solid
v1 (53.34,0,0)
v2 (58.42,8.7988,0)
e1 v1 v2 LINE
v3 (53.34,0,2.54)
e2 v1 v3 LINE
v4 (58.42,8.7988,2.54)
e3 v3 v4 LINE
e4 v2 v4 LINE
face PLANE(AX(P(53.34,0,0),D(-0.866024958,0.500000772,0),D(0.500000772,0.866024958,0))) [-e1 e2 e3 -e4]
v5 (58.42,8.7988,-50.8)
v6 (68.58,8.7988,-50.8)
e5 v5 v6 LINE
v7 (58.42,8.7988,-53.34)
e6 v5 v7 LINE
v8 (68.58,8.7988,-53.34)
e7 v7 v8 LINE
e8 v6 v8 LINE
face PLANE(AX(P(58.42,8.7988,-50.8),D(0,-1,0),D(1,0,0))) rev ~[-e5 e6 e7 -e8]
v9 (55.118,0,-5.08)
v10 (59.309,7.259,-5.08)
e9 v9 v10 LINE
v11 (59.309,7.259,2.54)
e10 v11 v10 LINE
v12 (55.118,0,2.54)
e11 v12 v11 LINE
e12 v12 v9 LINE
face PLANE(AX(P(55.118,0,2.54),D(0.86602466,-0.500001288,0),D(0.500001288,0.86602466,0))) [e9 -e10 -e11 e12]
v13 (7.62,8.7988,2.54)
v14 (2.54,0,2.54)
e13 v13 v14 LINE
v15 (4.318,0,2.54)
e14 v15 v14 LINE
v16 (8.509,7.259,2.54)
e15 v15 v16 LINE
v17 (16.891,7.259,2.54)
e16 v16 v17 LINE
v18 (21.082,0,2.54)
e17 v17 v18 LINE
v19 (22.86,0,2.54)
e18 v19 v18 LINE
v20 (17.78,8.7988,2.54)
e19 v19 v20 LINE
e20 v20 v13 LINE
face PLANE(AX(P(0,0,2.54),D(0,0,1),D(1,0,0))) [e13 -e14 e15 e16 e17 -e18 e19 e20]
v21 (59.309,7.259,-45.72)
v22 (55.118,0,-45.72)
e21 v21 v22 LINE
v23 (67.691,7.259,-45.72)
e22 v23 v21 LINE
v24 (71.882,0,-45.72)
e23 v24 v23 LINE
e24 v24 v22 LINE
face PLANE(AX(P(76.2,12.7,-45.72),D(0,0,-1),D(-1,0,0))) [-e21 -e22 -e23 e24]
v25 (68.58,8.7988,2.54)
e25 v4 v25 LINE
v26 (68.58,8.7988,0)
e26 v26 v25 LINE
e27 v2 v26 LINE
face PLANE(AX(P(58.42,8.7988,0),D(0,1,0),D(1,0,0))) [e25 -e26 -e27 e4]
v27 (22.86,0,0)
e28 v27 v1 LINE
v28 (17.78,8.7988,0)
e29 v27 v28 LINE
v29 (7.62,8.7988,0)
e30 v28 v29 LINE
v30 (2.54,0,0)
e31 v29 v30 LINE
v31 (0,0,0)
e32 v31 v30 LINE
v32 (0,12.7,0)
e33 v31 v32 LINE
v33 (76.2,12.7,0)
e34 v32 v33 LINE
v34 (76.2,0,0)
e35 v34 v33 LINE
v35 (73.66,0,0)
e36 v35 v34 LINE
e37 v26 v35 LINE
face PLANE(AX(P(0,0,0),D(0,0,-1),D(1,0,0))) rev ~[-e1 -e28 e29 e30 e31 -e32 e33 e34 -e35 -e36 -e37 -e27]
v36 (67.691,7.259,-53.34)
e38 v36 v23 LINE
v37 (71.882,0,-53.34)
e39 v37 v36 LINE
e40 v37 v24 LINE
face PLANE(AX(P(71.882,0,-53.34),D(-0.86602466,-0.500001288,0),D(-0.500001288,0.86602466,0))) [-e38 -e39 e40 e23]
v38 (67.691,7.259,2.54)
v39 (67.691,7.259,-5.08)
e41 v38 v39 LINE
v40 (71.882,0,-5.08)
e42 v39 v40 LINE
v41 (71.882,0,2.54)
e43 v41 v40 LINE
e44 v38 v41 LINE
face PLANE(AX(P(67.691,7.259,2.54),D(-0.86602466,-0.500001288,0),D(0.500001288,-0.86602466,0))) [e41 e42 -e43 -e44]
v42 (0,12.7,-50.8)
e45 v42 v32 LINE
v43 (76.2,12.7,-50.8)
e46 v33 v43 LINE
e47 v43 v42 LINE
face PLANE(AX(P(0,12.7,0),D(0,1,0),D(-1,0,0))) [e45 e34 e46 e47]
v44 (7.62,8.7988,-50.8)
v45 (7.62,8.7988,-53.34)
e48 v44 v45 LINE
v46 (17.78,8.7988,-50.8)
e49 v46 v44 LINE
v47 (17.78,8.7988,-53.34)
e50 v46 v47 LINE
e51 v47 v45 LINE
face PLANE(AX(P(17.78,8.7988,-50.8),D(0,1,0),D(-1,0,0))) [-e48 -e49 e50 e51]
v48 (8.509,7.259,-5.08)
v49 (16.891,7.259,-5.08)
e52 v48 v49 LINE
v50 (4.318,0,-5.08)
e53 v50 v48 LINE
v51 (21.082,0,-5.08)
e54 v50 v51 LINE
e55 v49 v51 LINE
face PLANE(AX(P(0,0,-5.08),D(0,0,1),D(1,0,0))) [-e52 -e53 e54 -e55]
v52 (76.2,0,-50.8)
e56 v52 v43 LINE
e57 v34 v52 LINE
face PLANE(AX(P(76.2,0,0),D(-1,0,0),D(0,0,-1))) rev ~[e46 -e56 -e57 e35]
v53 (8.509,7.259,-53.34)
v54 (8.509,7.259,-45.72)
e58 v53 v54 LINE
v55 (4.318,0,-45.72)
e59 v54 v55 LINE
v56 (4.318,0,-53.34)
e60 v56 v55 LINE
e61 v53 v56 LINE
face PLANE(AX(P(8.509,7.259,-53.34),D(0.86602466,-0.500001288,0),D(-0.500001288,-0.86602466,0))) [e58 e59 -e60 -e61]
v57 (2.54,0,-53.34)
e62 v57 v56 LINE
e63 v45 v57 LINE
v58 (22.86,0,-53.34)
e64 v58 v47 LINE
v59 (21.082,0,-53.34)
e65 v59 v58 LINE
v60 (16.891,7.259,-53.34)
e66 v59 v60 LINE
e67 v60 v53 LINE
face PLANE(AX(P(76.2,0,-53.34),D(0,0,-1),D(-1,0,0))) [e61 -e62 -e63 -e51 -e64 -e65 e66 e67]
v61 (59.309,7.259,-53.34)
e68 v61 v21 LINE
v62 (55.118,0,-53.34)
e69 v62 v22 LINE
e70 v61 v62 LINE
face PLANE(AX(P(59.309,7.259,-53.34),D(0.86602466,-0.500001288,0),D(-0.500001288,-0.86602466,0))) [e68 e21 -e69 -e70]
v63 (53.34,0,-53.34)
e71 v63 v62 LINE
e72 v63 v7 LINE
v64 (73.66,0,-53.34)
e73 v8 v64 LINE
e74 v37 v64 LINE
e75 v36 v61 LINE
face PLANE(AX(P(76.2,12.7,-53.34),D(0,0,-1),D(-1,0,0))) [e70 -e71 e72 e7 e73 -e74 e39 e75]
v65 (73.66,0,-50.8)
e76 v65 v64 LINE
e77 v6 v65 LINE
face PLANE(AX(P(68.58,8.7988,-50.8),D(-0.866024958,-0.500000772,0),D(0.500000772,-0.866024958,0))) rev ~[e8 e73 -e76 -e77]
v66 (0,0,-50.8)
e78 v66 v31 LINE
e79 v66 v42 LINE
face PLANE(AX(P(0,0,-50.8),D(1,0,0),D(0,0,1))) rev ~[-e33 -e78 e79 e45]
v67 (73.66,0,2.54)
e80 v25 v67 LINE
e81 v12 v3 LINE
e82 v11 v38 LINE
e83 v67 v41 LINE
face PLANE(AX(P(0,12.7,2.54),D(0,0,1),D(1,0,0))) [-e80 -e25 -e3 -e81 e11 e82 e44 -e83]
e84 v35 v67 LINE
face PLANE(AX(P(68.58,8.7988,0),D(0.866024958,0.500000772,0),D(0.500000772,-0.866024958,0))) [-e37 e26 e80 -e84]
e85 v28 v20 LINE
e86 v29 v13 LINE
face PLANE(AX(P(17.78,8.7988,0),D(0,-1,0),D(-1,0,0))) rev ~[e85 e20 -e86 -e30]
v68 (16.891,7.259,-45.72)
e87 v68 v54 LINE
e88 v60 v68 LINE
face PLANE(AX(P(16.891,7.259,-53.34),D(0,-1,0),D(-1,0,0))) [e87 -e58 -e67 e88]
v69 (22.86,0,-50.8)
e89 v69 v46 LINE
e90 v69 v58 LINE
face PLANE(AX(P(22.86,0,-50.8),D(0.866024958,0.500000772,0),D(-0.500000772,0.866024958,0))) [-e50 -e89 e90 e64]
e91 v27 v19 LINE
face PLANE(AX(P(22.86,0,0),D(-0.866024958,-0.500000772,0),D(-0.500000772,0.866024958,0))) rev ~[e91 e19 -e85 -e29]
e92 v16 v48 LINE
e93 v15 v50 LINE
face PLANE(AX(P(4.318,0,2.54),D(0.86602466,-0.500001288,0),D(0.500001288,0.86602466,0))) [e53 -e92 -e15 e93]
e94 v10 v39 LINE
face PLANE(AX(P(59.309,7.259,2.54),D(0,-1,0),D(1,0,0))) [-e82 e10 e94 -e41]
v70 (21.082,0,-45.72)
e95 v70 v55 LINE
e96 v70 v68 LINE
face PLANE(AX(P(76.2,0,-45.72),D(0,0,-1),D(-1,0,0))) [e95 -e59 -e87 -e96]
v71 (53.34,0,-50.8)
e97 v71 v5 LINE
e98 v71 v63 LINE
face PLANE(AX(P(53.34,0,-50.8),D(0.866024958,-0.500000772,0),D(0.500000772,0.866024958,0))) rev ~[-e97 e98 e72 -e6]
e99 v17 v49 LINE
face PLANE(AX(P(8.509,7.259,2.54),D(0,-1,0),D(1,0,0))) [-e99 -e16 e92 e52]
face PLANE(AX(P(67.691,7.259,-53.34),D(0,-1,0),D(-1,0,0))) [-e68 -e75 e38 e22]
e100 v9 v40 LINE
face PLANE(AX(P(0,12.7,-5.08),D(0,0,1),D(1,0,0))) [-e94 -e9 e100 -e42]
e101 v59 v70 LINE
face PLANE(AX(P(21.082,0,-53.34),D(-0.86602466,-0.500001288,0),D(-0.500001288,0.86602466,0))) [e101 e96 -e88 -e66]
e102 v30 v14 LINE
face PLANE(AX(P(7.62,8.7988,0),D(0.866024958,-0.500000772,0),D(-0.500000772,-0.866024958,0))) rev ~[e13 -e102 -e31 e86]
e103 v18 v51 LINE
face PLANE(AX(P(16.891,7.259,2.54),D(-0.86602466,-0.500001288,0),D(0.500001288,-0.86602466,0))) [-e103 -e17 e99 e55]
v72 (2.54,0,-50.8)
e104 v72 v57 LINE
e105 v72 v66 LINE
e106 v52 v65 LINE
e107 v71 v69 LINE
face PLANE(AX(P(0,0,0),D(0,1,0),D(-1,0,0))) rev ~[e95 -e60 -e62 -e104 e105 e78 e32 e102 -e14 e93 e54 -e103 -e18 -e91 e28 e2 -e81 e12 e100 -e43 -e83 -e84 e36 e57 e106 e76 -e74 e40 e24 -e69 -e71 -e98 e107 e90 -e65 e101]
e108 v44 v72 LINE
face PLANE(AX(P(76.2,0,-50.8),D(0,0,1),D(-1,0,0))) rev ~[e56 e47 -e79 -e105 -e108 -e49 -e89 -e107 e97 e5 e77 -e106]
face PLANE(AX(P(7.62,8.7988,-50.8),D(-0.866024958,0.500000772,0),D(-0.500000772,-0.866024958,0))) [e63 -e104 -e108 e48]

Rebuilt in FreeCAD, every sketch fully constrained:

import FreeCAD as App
import Part
import Sketcher
Q = App.Units.Quantity

doc = App.newDocument("Part")
body = doc.addObject("PartDesign::Body", "Body")

sketch1 = body.newObject("Sketcher::SketchObject", "Sketch")
sketch1.AttachmentSupport = (doc.getObject("XZ_Plane"), [""])
sketch1.MapMode = "FlatFace"
sketch1.addGeometry([
    Part.LineSegment(App.Vector(0, -50.8, 0), App.Vector(0, 0, 0)),
    Part.LineSegment(App.Vector(0, 0, 0), App.Vector(76.2, 0, 0)),
    Part.LineSegment(App.Vector(76.2, 0, 0), App.Vector(76.2, -50.8, 0)),
    Part.LineSegment(App.Vector(76.2, -50.8, 0), App.Vector(0, -50.8, 0)),
], False)
sketch1.addConstraint([
    Sketcher.Constraint("Coincident", 0, 2, 1, 1),
    Sketcher.Constraint("Coincident", 1, 2, 2, 1),
    Sketcher.Constraint("Coincident", 2, 2, 3, 1),
    Sketcher.Constraint("Coincident", 3, 2, 0, 1),
    Sketcher.Constraint("Vertical", 0),
    Sketcher.Constraint("Horizontal", 1),
    Sketcher.Constraint("Vertical", 2),
    Sketcher.Constraint("Horizontal", 3),
    Sketcher.Constraint("Coincident", 0, 2, -1, 1),
    Sketcher.Constraint("DistanceX", 1, 1, 1, 2, Q("3 in")),
    Sketcher.Constraint("DistanceY", 0, 1, 0, 2, Q("2 in")),
])
pad1 = body.newObject("PartDesign::Pad", "Pad")
pad1.Profile = sketch1
pad1.Length = Q("0.5 in")
pad1.Reversed = True

sketch2 = body.newObject("Sketcher::SketchObject", "Sketch001")
sketch2.AttachmentSupport = (doc.getObject("XY_Plane"), [""])
sketch2.MapMode = "FlatFace"
sketch2.AttachmentOffset = App.Placement(App.Vector(0, 0, -2 * 25.4), App.Rotation())
sketch2.addGeometry([
    Part.LineSegment(App.Vector(22.86, 0, 0), App.Vector(2.54, 0, 0)),
    Part.LineSegment(App.Vector(2.54, 0, 0), App.Vector(7.62, 8.7988, 0)),
    Part.LineSegment(App.Vector(7.62, 8.7988, 0), App.Vector(17.78, 8.7988, 0)),
    Part.LineSegment(App.Vector(17.78, 8.7988, 0), App.Vector(22.86, 0, 0)),
], False)
sketch2.addConstraint([
    Sketcher.Constraint("Coincident", 0, 2, 1, 1),
    Sketcher.Constraint("Coincident", 1, 2, 2, 1),
    Sketcher.Constraint("Coincident", 2, 2, 3, 1),
    Sketcher.Constraint("Coincident", 3, 2, 0, 1),
    Sketcher.Constraint("Horizontal", 0),
    Sketcher.Constraint("Horizontal", 2),
    Sketcher.Constraint("PointOnObject", 0, 2, -1),
    Sketcher.Constraint("Equal", 1, 3),
    Sketcher.Constraint("DistanceX", 0, 2, 0, 1, Q("0.8 in")),
    Sketcher.Constraint("DistanceX", 2, 1, 2, 2, Q("0.4 in")),
    Sketcher.Constraint("Angle", 1, Q("60 deg")),
    Sketcher.Constraint("DistanceX", -1, 1, 0, 2, Q("0.1 in")),
])
pad2 = body.newObject("PartDesign::Pad", "Pad001")
pad2.Profile = sketch2
pad2.Length = Q("0.1 in")
pad2.Reversed = True

sketch3 = body.newObject("Sketcher::SketchObject", "Sketch002")
sketch3.AttachmentSupport = (doc.getObject("XY_Plane"), [""])
sketch3.MapMode = "FlatFace"
sketch3.AttachmentOffset = App.Placement(App.Vector(0, 0, -2 * 25.4), App.Rotation())
sketch3.addGeometry([
    Part.LineSegment(App.Vector(73.66, 0, 0), App.Vector(53.34, 0, 0)),
    Part.LineSegment(App.Vector(53.34, 0, 0), App.Vector(58.42, 8.7988, 0)),
    Part.LineSegment(App.Vector(58.42, 8.7988, 0), App.Vector(68.58, 8.7988, 0)),
    Part.LineSegment(App.Vector(68.58, 8.7988, 0), App.Vector(73.66, 0, 0)),
], False)
sketch3.addConstraint([
    Sketcher.Constraint("Coincident", 0, 2, 1, 1),
    Sketcher.Constraint("Coincident", 1, 2, 2, 1),
    Sketcher.Constraint("Coincident", 2, 2, 3, 1),
    Sketcher.Constraint("Coincident", 3, 2, 0, 1),
    Sketcher.Constraint("Horizontal", 0),
    Sketcher.Constraint("Horizontal", 2),
    Sketcher.Constraint("PointOnObject", 0, 2, -1),
    Sketcher.Constraint("Equal", 1, 3),
    Sketcher.Constraint("DistanceX", 0, 2, 0, 1, Q("0.8 in")),
    Sketcher.Constraint("DistanceX", 2, 1, 2, 2, Q("0.4 in")),
    Sketcher.Constraint("Angle", 1, Q("60 deg")),
    Sketcher.Constraint("DistanceX", -1, 1, 0, 2, Q("2.1 in")),
])
pad3 = body.newObject("PartDesign::Pad", "Pad002")
pad3.Profile = sketch3
pad3.Length = Q("0.1 in")
pad3.Reversed = True

sketch4 = body.newObject("Sketcher::SketchObject", "Sketch003")
sketch4.AttachmentSupport = (doc.getObject("XY_Plane"), [""])
sketch4.MapMode = "FlatFace"
sketch4.addGeometry([
    Part.LineSegment(App.Vector(2.54, 0, 0), App.Vector(22.86, 0, 0)),
    Part.LineSegment(App.Vector(22.86, 0, 0), App.Vector(17.78, 8.7988, 0)),
    Part.LineSegment(App.Vector(17.78, 8.7988, 0), App.Vector(7.62, 8.7988, 0)),
    Part.LineSegment(App.Vector(7.62, 8.7988, 0), App.Vector(2.54, 0, 0)),
], False)
sketch4.addConstraint([
    Sketcher.Constraint("Coincident", 0, 2, 1, 1),
    Sketcher.Constraint("Coincident", 1, 2, 2, 1),
    Sketcher.Constraint("Coincident", 2, 2, 3, 1),
    Sketcher.Constraint("Coincident", 3, 2, 0, 1),
    Sketcher.Constraint("Horizontal", 0),
    Sketcher.Constraint("Horizontal", 2),
    Sketcher.Constraint("PointOnObject", 0, 2, -1),
    Sketcher.Constraint("Equal", 1, 3),
    Sketcher.Constraint("DistanceX", 0, 1, 0, 2, Q("0.8 in")),
    Sketcher.Constraint("DistanceX", 2, 2, 2, 1, Q("0.4 in")),
    Sketcher.Constraint("Distance", 1, Q("0.4 in")),
    Sketcher.Constraint("DistanceX", -1, 1, 0, 2, Q("0.9 in")),
])
pad4 = body.newObject("PartDesign::Pad", "Pad003")
pad4.Profile = sketch4
pad4.Length = Q("0.1 in")

sketch5 = body.newObject("Sketcher::SketchObject", "Sketch004")
sketch5.AttachmentSupport = (doc.getObject("XY_Plane"), [""])
sketch5.MapMode = "FlatFace"
sketch5.addGeometry([
    Part.LineSegment(App.Vector(58.42, 8.7988, 0), App.Vector(53.34, 0, 0)),
    Part.LineSegment(App.Vector(53.34, 0, 0), App.Vector(73.66, 0, 0)),
    Part.LineSegment(App.Vector(73.66, 0, 0), App.Vector(68.58, 8.7988, 0)),
    Part.LineSegment(App.Vector(68.58, 8.7988, 0), App.Vector(58.42, 8.7988, 0)),
], False)
sketch5.addConstraint([
    Sketcher.Constraint("Coincident", 0, 2, 1, 1),
    Sketcher.Constraint("Coincident", 1, 2, 2, 1),
    Sketcher.Constraint("Coincident", 2, 2, 3, 1),
    Sketcher.Constraint("Coincident", 3, 2, 0, 1),
    Sketcher.Constraint("Horizontal", 1),
    Sketcher.Constraint("Horizontal", 3),
    Sketcher.Constraint("PointOnObject", 0, 2, -1),
    Sketcher.Constraint("Equal", 0, 2),
    Sketcher.Constraint("DistanceX", 3, 2, 3, 1, Q("0.4 in")),
    Sketcher.Constraint("Distance", 0, Q("0.4 in")),
    Sketcher.Constraint("DistanceX", 1, 1, 1, 2, Q("0.8 in")),
    Sketcher.Constraint("DistanceX", -1, 1, 0, 2, Q("2.1 in")),
])
pad5 = body.newObject("PartDesign::Pad", "Pad004")
pad5.Profile = sketch5
pad5.Length = Q("0.1 in")

sketch6 = body.newObject("Sketcher::SketchObject", "Sketch005")
sketch6.AttachmentSupport = (doc.getObject("XY_Plane"), [""])
sketch6.MapMode = "FlatFace"
sketch6.AttachmentOffset = App.Placement(App.Vector(0, 0, -2.1 * 25.4), App.Rotation())
sketch6.addGeometry([
    Part.LineSegment(App.Vector(67.691, 7.259, 0), App.Vector(71.882, 0, 0)),
    Part.LineSegment(App.Vector(71.882, 0, 0), App.Vector(67.691, -7.259, 0)),
    Part.LineSegment(App.Vector(67.691, -7.259, 0), App.Vector(59.309, -7.259, 0)),
    Part.LineSegment(App.Vector(59.309, -7.259, 0), App.Vector(55.118, 0, 0)),
    Part.LineSegment(App.Vector(55.118, 0, 0), App.Vector(59.309, 7.259, 0)),
    Part.LineSegment(App.Vector(59.309, 7.259, 0), App.Vector(67.691, 7.259, 0)),
], False)
sketch6.addConstraint([
    Sketcher.Constraint("Coincident", 0, 2, 1, 1),
    Sketcher.Constraint("Coincident", 1, 2, 2, 1),
    Sketcher.Constraint("Coincident", 2, 2, 3, 1),
    Sketcher.Constraint("Coincident", 3, 2, 4, 1),
    Sketcher.Constraint("Coincident", 4, 2, 5, 1),
    Sketcher.Constraint("Coincident", 5, 2, 0, 1),
    Sketcher.Constraint("Horizontal", 2),
    Sketcher.Constraint("Horizontal", 5),
    Sketcher.Constraint("Symmetric", 2, 2, 4, 2, -1),
    Sketcher.Constraint("PointOnObject", 0, 2, -1),
    Sketcher.Constraint("PointOnObject", 3, 2, -1),
    Sketcher.Constraint("Parallel", 0, 3),
    Sketcher.Constraint("Parallel", 1, 4),
    Sketcher.Constraint("Angle", 0, Q("-60 deg")),
    Sketcher.Constraint("DistanceX", 2, 2, 2, 1, Q("0.33 in")),
    Sketcher.Constraint("Distance", 0, Q("0.33 in")),
    Sketcher.Constraint("DistanceX", -1, 1, 0, 2, Q("2.83 in")),
])
pocket1 = body.newObject("PartDesign::Pocket", "Pocket")
pocket1.Profile = sketch6
pocket1.Length = Q("0.3 in")
pocket1.Reversed = True

sketch7 = body.newObject("Sketcher::SketchObject", "Sketch006")
sketch7.AttachmentSupport = (doc.getObject("XY_Plane"), [""])
sketch7.MapMode = "FlatFace"
sketch7.AttachmentOffset = App.Placement(App.Vector(0, 0, -2.1 * 25.4), App.Rotation())
sketch7.addGeometry([
    Part.LineSegment(App.Vector(16.891, 7.259, 0), App.Vector(21.082, 0, 0)),
    Part.LineSegment(App.Vector(21.082, 0, 0), App.Vector(16.891, -7.259, 0)),
    Part.LineSegment(App.Vector(16.891, -7.259, 0), App.Vector(8.509, -7.259, 0)),
    Part.LineSegment(App.Vector(8.509, -7.259, 0), App.Vector(4.318, 0, 0)),
    Part.LineSegment(App.Vector(4.318, 0, 0), App.Vector(8.509, 7.259, 0)),
    Part.LineSegment(App.Vector(8.509, 7.259, 0), App.Vector(16.891, 7.259, 0)),
], False)
sketch7.addConstraint([
    Sketcher.Constraint("Coincident", 0, 2, 1, 1),
    Sketcher.Constraint("Coincident", 1, 2, 2, 1),
    Sketcher.Constraint("Coincident", 2, 2, 3, 1),
    Sketcher.Constraint("Coincident", 3, 2, 4, 1),
    Sketcher.Constraint("Coincident", 4, 2, 5, 1),
    Sketcher.Constraint("Coincident", 5, 2, 0, 1),
    Sketcher.Constraint("Horizontal", 2),
    Sketcher.Constraint("Horizontal", 5),
    Sketcher.Constraint("Symmetric", 2, 2, 4, 2, -1),
    Sketcher.Constraint("PointOnObject", 0, 2, -1),
    Sketcher.Constraint("PointOnObject", 3, 2, -1),
    Sketcher.Constraint("Parallel", 0, 3),
    Sketcher.Constraint("Parallel", 1, 4),
    Sketcher.Constraint("Angle", 0, Q("-60 deg")),
    Sketcher.Constraint("DistanceX", 2, 2, 2, 1, Q("0.33 in")),
    Sketcher.Constraint("Distance", 0, Q("0.33 in")),
    Sketcher.Constraint("DistanceX", -1, 1, 0, 2, Q("0.83 in")),
])
pocket2 = body.newObject("PartDesign::Pocket", "Pocket001")
pocket2.Profile = sketch7
pocket2.Length = Q("0.3 in")
pocket2.Reversed = True

sketch8 = body.newObject("Sketcher::SketchObject", "Sketch007")
sketch8.AttachmentSupport = (doc.getObject("XY_Plane"), [""])
sketch8.MapMode = "FlatFace"
sketch8.AttachmentOffset = App.Placement(App.Vector(0, 0, 0.1 * 25.4), App.Rotation())
sketch8.addGeometry([
    Part.LineSegment(App.Vector(8.509, 7.259, 0), App.Vector(4.318, 0, 0)),
    Part.LineSegment(App.Vector(4.318, 0, 0), App.Vector(8.509, -7.259, 0)),
    Part.LineSegment(App.Vector(8.509, -7.259, 0), App.Vector(16.891, -7.259, 0)),
    Part.LineSegment(App.Vector(16.891, -7.259, 0), App.Vector(21.082, 0, 0)),
    Part.LineSegment(App.Vector(21.082, 0, 0), App.Vector(16.891, 7.259, 0)),
    Part.LineSegment(App.Vector(16.891, 7.259, 0), App.Vector(8.509, 7.259, 0)),
], False)
sketch8.addConstraint([
    Sketcher.Constraint("Coincident", 0, 2, 1, 1),
    Sketcher.Constraint("Coincident", 1, 2, 2, 1),
    Sketcher.Constraint("Coincident", 2, 2, 3, 1),
    Sketcher.Constraint("Coincident", 3, 2, 4, 1),
    Sketcher.Constraint("Coincident", 4, 2, 5, 1),
    Sketcher.Constraint("Coincident", 5, 2, 0, 1),
    Sketcher.Constraint("Horizontal", 2),
    Sketcher.Constraint("Horizontal", 5),
    Sketcher.Constraint("Symmetric", 2, 2, 4, 2, -1),
    Sketcher.Constraint("PointOnObject", 0, 2, -1),
    Sketcher.Constraint("PointOnObject", 3, 2, -1),
    Sketcher.Constraint("Parallel", 0, 3),
    Sketcher.Constraint("Parallel", 1, 4),
    Sketcher.Constraint("Angle", 0, Q("-120 deg")),
    Sketcher.Constraint("DistanceX", 2, 1, 2, 2, Q("0.33 in")),
    Sketcher.Constraint("Distance", 0, Q("0.33 in")),
    Sketcher.Constraint("DistanceX", -1, 1, 0, 2, Q("0.17 in")),
])
pocket3 = body.newObject("PartDesign::Pocket", "Pocket002")
pocket3.Profile = sketch8
pocket3.Length = Q("0.3 in")

sketch9 = body.newObject("Sketcher::SketchObject", "Sketch008")
sketch9.AttachmentSupport = (doc.getObject("XY_Plane"), [""])
sketch9.MapMode = "FlatFace"
sketch9.AttachmentOffset = App.Placement(App.Vector(0, 0, 0.1 * 25.4), App.Rotation())
sketch9.addGeometry([
    Part.LineSegment(App.Vector(59.309, 7.259, 0), App.Vector(55.118, 0, 0)),
    Part.LineSegment(App.Vector(55.118, 0, 0), App.Vector(59.309, -7.259, 0)),
    Part.LineSegment(App.Vector(59.309, -7.259, 0), App.Vector(67.691, -7.259, 0)),
    Part.LineSegment(App.Vector(67.691, -7.259, 0), App.Vector(71.882, 0, 0)),
    Part.LineSegment(App.Vector(71.882, 0, 0), App.Vector(67.691, 7.259, 0)),
    Part.LineSegment(App.Vector(67.691, 7.259, 0), App.Vector(59.309, 7.259, 0)),
], False)
sketch9.addConstraint([
    Sketcher.Constraint("Coincident", 0, 2, 1, 1),
    Sketcher.Constraint("Coincident", 1, 2, 2, 1),
    Sketcher.Constraint("Coincident", 2, 2, 3, 1),
    Sketcher.Constraint("Coincident", 3, 2, 4, 1),
    Sketcher.Constraint("Coincident", 4, 2, 5, 1),
    Sketcher.Constraint("Coincident", 5, 2, 0, 1),
    Sketcher.Constraint("Horizontal", 2),
    Sketcher.Constraint("Horizontal", 5),
    Sketcher.Constraint("Symmetric", 2, 2, 4, 2, -1),
    Sketcher.Constraint("PointOnObject", 0, 2, -1),
    Sketcher.Constraint("PointOnObject", 3, 2, -1),
    Sketcher.Constraint("Parallel", 0, 3),
    Sketcher.Constraint("Parallel", 1, 4),
    Sketcher.Constraint("Angle", 0, Q("-120 deg")),
    Sketcher.Constraint("DistanceX", 2, 1, 2, 2, Q("0.33 in")),
    Sketcher.Constraint("Distance", 0, Q("0.33 in")),
    Sketcher.Constraint("DistanceX", -1, 1, 0, 2, Q("2.17 in")),
])
pocket4 = body.newObject("PartDesign::Pocket", "Pocket003")
pocket4.Profile = sketch9
pocket4.Length = Q("0.3 in")

doc.recompute()
